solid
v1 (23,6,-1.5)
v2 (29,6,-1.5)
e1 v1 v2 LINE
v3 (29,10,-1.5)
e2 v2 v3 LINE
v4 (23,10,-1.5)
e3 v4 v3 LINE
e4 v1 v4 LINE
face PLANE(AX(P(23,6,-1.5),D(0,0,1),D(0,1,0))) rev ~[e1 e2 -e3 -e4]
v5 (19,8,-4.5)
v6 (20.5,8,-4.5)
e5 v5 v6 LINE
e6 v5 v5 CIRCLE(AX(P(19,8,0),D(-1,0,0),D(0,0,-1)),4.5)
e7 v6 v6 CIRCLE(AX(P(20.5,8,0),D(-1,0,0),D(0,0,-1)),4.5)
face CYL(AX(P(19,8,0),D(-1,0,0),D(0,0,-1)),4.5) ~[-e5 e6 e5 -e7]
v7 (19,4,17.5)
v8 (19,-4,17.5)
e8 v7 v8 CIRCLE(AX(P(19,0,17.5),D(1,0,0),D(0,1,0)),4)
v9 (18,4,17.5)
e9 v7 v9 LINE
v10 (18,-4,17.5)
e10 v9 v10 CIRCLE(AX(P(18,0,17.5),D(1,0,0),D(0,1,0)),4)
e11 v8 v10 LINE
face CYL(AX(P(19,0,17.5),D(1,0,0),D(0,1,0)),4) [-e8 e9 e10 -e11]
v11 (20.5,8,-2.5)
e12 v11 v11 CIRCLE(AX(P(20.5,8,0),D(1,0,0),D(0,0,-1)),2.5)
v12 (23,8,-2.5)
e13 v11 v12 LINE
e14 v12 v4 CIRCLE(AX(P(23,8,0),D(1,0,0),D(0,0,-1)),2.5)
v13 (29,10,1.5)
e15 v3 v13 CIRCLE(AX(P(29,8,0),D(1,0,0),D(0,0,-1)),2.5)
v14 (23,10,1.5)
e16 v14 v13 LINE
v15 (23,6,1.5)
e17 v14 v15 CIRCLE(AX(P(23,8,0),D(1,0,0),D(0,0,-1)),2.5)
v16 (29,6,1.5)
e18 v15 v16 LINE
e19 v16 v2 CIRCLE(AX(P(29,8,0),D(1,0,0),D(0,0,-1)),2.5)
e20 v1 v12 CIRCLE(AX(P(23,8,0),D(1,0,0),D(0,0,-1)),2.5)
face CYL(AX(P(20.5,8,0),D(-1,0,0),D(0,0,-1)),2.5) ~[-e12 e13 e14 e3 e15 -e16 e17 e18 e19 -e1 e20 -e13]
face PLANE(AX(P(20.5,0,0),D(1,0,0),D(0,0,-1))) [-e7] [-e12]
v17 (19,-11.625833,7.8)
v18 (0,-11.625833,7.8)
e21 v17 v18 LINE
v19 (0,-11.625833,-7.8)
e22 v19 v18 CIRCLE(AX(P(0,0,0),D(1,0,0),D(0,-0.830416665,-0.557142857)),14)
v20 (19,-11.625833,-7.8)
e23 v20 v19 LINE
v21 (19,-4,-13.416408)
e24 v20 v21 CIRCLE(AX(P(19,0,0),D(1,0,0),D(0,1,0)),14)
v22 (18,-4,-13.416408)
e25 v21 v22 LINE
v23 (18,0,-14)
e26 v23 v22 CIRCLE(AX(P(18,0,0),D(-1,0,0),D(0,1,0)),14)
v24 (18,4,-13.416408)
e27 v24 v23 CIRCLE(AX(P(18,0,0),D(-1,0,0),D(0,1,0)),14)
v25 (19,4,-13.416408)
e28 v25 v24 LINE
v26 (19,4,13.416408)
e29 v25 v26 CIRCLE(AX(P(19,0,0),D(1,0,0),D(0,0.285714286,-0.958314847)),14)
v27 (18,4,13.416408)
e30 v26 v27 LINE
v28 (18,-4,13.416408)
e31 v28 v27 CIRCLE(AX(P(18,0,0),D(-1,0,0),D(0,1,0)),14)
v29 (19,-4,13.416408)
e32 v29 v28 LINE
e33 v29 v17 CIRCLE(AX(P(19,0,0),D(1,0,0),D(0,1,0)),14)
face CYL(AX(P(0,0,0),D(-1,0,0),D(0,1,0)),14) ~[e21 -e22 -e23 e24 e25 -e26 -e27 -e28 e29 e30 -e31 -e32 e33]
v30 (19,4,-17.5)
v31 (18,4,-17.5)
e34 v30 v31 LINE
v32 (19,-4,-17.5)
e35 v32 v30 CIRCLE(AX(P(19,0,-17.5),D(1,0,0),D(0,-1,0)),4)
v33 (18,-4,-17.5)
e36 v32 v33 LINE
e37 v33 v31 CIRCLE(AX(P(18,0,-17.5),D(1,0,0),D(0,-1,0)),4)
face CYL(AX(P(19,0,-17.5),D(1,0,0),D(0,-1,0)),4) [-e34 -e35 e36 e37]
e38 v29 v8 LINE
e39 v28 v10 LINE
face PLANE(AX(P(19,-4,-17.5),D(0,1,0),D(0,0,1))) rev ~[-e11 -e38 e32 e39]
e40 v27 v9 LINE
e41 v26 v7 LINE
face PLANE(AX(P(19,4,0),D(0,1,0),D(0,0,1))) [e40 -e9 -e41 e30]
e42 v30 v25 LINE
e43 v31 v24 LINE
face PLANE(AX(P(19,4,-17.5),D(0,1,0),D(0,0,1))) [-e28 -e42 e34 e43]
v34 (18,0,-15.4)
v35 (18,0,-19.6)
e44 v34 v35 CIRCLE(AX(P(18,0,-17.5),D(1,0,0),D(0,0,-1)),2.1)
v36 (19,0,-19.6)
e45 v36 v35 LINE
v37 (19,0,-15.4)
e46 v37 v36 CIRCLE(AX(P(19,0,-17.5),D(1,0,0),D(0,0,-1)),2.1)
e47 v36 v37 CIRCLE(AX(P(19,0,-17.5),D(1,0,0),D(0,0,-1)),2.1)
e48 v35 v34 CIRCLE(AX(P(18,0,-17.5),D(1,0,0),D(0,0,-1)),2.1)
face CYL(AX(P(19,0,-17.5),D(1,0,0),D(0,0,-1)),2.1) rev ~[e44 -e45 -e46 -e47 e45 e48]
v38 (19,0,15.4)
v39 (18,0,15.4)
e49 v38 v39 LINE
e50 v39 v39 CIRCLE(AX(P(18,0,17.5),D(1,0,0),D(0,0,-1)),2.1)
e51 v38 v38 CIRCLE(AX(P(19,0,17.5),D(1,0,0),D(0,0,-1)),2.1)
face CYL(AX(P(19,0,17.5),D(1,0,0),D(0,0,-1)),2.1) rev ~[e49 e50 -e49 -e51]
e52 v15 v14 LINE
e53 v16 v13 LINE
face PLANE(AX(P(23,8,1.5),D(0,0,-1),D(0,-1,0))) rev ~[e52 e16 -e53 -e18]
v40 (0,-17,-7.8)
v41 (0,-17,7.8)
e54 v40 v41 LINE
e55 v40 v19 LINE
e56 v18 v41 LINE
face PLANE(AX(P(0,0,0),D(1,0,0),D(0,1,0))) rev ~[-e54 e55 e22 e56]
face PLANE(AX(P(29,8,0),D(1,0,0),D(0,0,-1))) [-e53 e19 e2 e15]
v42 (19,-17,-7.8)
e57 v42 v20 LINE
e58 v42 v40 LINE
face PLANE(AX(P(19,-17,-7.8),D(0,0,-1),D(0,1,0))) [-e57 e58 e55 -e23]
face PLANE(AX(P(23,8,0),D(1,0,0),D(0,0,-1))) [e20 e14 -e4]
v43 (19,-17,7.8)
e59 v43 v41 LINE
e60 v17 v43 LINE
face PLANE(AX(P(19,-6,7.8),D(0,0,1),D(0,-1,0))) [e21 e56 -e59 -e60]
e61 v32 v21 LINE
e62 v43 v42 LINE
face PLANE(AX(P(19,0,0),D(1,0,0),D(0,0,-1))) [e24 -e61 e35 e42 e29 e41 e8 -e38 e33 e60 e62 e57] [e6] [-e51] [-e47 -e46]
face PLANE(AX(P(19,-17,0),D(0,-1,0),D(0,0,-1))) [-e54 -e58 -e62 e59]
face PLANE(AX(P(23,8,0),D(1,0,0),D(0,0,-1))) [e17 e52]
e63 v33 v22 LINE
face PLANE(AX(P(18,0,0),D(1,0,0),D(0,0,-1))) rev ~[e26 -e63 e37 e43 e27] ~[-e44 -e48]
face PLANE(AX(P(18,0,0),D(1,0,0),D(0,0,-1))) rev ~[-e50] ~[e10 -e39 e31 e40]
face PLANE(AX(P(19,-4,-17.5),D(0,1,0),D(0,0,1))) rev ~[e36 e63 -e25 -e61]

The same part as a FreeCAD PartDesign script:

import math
import FreeCAD as App
import Part
import Sketcher
from FreeCAD import Vector
Q = App.Units.Quantity


def add_polygon(sketch, points):
    """Adds a closed chain of lines whose ends are joined by coincident constraints."""
    first, n = sketch.GeometryCount, len(points)
    for a, b in zip(points, points[1:] + points[:1]):
        sketch.addGeometry(Part.LineSegment(App.Vector(*a, 0), App.Vector(*b, 0)), False)
    for i in range(n):
        sketch.addConstraint(Sketcher.Constraint("Coincident", first + i, 2, first + (i + 1) % n, 1))

doc = App.newDocument("Part")
body = doc.addObject("PartDesign::Body", "Body")

sketch1 = doc.addObject("Sketcher::SketchObject", "Sketch")
body.addObject(sketch1)
sketch1.AttachmentSupport = (doc.YZ_Plane, [""])
sketch1.MapMode = "FlatFace"
sketch1.addGeometry(Part.Circle(Vector(0, 0, 0), Vector(0, 0, 1), 14), False)
sketch1.addConstraint(Sketcher.Constraint("Coincident", 0, 3, -1, 1))
sketch1.addConstraint(Sketcher.Constraint("Diameter", 0, Q("28 mm")))
pad1 = doc.addObject("PartDesign::Pad", "Pad")
body.addObject(pad1)
pad1.Profile = sketch1
pad1.Length = 19

sketch2 = doc.addObject("Sketcher::SketchObject", "Sketch001")
body.addObject(sketch2)
sketch2.AttachmentSupport = (doc.YZ_Plane, [""])
sketch2.MapMode = "FlatFace"
sketch2.AttachmentOffset = App.Placement(Vector(0, 0, 19), App.Rotation())
sketch2.addGeometry(Part.Circle(Vector(8, 0, 0), Vector(0, 0, 1), 4.5), False)
sketch2.addConstraint(Sketcher.Constraint("PointOnObject", 0, 3, -1))
sketch2.addConstraint(Sketcher.Constraint("Diameter", 0, Q("9 mm")))
sketch2.addConstraint(Sketcher.Constraint("DistanceX", -1, 1, 0, 3, Q("8 mm")))
pad2 = doc.addObject("PartDesign::Pad", "Pad001")
body.addObject(pad2)
pad2.Profile = sketch2
pad2.Length = 1.5

sketch3 = doc.addObject("Sketcher::SketchObject", "Sketch002")
body.addObject(sketch3)
sketch3.AttachmentSupport = (doc.YZ_Plane, [""])
sketch3.MapMode = "FlatFace"
sketch3.AttachmentOffset = App.Placement(Vector(0, 0, 20.5), App.Rotation())
sketch3.addGeometry(Part.Circle(Vector(8, 0, 0), Vector(0, 0, 1), 2.5), False)
sketch3.addConstraint(Sketcher.Constraint("PointOnObject", 0, 3, -1))
sketch3.addConstraint(Sketcher.Constraint("Diameter", 0, Q("5 mm")))
sketch3.addConstraint(Sketcher.Constraint("DistanceX", -1, 1, 0, 3, Q("8 mm")))
pad3 = doc.addObject("PartDesign::Pad", "Pad002")
body.addObject(pad3)
pad3.Profile = sketch3
pad3.Length = 2.5

sketch4 = doc.addObject("Sketcher::SketchObject", "Sketch003")
body.addObject(sketch4)
sketch4.AttachmentSupport = (doc.YZ_Plane, [""])
sketch4.MapMode = "FlatFace"
sketch4.AttachmentOffset = App.Placement(Vector(0, 0, 23), App.Rotation())
sketch4.addGeometry(Part.LineSegment(Vector(10, 1.5, 0), Vector(6, 1.5, 0)), False)
sketch4.addGeometry(Part.ArcOfCircle(Part.Circle(Vector(8, 0, 0), Vector(0, 0, 1), 2.5), math.radians(143), math.radians(217)), False)
sketch4.addGeometry(Part.LineSegment(Vector(6, -1.5, 0), Vector(10, -1.5, 0)), False)
sketch4.addGeometry(Part.ArcOfCircle(Part.Circle(Vector(8, 0, 0), Vector(0, 0, 1), 2.5), math.radians(-37), math.radians(37)), False)
sketch4.addConstraint(Sketcher.Constraint("Coincident", 0, 2, 1, 1))
sketch4.addConstraint(Sketcher.Constraint("Coincident", 1, 2, 2, 1))
sketch4.addConstraint(Sketcher.Constraint("Coincident", 2, 2, 3, 1))
sketch4.addConstraint(Sketcher.Constraint("Coincident", 3, 2, 0, 1))
sketch4.addConstraint(Sketcher.Constraint("Horizontal", 0))
sketch4.addConstraint(Sketcher.Constraint("Horizontal", 2))
sketch4.addConstraint(Sketcher.Constraint("Coincident", 3, 3, 1, 3))
sketch4.addConstraint(Sketcher.Constraint("Equal", 1, 3))
sketch4.addConstraint(Sketcher.Constraint("Symmetric", 0, 2, 1, 2, -1))
sketch4.addConstraint(Sketcher.Constraint("DistanceY", 1, 2, 0, 2, Q("3 mm")))
sketch4.addConstraint(Sketcher.Constraint("Radius", 1, Q("2.5 mm")))
sketch4.addConstraint(Sketcher.Constraint("DistanceX", -1, 1, 1, 3, Q("8 mm")))
pad4 = doc.addObject("PartDesign::Pad", "Pad003")
body.addObject(pad4)
pad4.Profile = sketch4
pad4.Length = 6

sketch5 = doc.addObject("Sketcher::SketchObject", "Sketch004")
body.addObject(sketch5)
sketch5.AttachmentSupport = (doc.YZ_Plane, [""])
sketch5.MapMode = "FlatFace"
sketch5.AttachmentOffset = App.Placement(Vector(0, 0, 19), App.Rotation())
sketch5.addGeometry(Part.LineSegment(Vector(4, -17.5, 0), Vector(4, 0, 0)), False)
sketch5.addGeometry(Part.LineSegment(Vector(4, 0, 0), Vector(4, 17.5, 0)), False)
sketch5.addGeometry(Part.ArcOfCircle(Part.Circle(Vector(0, 17.5, 0), Vector(0, 0, 1), 4), math.radians(0), math.radians(180)), False)
sketch5.addGeometry(Part.LineSegment(Vector(-4, 17.5, 0), Vector(-4, -17.5, 0)), False)
sketch5.addGeometry(Part.ArcOfCircle(Part.Circle(Vector(0, -17.5, 0), Vector(0, 0, 1), 4), math.radians(180), math.radians(360)), False)
sketch5.addGeometry(Part.Circle(Vector(0, 17.5, 0), Vector(0, 0, 1), 2.1), False)
sketch5.addGeometry(Part.Circle(Vector(0, -17.5, 0), Vector(0, 0, 1), 2.1), False)
sketch5.addConstraint(Sketcher.Constraint("Coincident", 0, 2, 1, 1))
sketch5.addConstraint(Sketcher.Constraint("Tangent", 1, 2, 2, 1))
sketch5.addConstraint(Sketcher.Constraint("Tangent", 2, 2, 3, 1))
sketch5.addConstraint(Sketcher.Constraint("Tangent", 3, 2, 4, 1))
sketch5.addConstraint(Sketcher.Constraint("Tangent", 4, 2, 0, 1))
sketch5.addConstraint(Sketcher.Constraint("Vertical", 0))
sketch5.addConstraint(Sketcher.Constraint("Vertical", 1))
sketch5.addConstraint(Sketcher.Constraint("Vertical", 3))
sketch5.addConstraint(Sketcher.Constraint("Coincident", 5, 3, 2, 3))
sketch5.addConstraint(Sketcher.Constraint("Coincident", 6, 3, 4, 3))
sketch5.addConstraint(Sketcher.Constraint("Equal", 5, 6))
sketch5.addConstraint(Sketcher.Constraint("Symmetric", 2, 3, 4, 3, -1, 1))
sketch5.addConstraint(Sketcher.Constraint("PointOnObject", 0, 2, -1))
sketch5.addConstraint(Sketcher.Constraint("Radius", 2, Q("4 mm")))
sketch5.addConstraint(Sketcher.Constraint("Diameter", 5, Q("4.2 mm")))
sketch5.addConstraint(Sketcher.Constraint("DistanceY", 0, 1, 0, 2, Q("17.5 mm")))
pad5 = doc.addObject("PartDesign::Pad", "Pad004")
body.addObject(pad5)
pad5.Profile = sketch5
pad5.Length = 1
pad5.Reversed = True

sketch6 = doc.addObject("Sketcher::SketchObject", "Sketch005")
body.addObject(sketch6)
sketch6.AttachmentSupport = (doc.YZ_Plane, [""])
sketch6.MapMode = "FlatFace"
sketch6.AttachmentOffset = App.Placement(Vector(0, 0, 19), App.Rotation())
add_polygon(sketch6, [(-6, -8), (-6, 8), (-17, 8), (-17, -8)])
sketch6.addConstraint(Sketcher.Constraint("Vertical", 0))
sketch6.addConstraint(Sketcher.Constraint("Horizontal", 1))
sketch6.addConstraint(Sketcher.Constraint("Vertical", 2))
sketch6.addConstraint(Sketcher.Constraint("Horizontal", 3))
sketch6.addConstraint(Sketcher.Constraint("DistanceX", 1, 2, -1, 1, Q("17 mm")))
sketch6.addConstraint(Sketcher.Constraint("DistanceY", -1, 1, 0, 2, Q("7.8 mm")))
sketch6.addConstraint(Sketcher.Constraint("DistanceY", 2, 2, -1, 1, Q("7.8 mm")))
sketch6.addConstraint(Sketcher.Constraint("DistanceX", 1, 2, 1, 1, Q("11 mm")))
pad6 = doc.addObject("PartDesign::Pad", "Pad005")
body.addObject(pad6)
pad6.Profile = sketch6
pad6.Length = 19
pad6.Reversed = True

doc.recompute()
